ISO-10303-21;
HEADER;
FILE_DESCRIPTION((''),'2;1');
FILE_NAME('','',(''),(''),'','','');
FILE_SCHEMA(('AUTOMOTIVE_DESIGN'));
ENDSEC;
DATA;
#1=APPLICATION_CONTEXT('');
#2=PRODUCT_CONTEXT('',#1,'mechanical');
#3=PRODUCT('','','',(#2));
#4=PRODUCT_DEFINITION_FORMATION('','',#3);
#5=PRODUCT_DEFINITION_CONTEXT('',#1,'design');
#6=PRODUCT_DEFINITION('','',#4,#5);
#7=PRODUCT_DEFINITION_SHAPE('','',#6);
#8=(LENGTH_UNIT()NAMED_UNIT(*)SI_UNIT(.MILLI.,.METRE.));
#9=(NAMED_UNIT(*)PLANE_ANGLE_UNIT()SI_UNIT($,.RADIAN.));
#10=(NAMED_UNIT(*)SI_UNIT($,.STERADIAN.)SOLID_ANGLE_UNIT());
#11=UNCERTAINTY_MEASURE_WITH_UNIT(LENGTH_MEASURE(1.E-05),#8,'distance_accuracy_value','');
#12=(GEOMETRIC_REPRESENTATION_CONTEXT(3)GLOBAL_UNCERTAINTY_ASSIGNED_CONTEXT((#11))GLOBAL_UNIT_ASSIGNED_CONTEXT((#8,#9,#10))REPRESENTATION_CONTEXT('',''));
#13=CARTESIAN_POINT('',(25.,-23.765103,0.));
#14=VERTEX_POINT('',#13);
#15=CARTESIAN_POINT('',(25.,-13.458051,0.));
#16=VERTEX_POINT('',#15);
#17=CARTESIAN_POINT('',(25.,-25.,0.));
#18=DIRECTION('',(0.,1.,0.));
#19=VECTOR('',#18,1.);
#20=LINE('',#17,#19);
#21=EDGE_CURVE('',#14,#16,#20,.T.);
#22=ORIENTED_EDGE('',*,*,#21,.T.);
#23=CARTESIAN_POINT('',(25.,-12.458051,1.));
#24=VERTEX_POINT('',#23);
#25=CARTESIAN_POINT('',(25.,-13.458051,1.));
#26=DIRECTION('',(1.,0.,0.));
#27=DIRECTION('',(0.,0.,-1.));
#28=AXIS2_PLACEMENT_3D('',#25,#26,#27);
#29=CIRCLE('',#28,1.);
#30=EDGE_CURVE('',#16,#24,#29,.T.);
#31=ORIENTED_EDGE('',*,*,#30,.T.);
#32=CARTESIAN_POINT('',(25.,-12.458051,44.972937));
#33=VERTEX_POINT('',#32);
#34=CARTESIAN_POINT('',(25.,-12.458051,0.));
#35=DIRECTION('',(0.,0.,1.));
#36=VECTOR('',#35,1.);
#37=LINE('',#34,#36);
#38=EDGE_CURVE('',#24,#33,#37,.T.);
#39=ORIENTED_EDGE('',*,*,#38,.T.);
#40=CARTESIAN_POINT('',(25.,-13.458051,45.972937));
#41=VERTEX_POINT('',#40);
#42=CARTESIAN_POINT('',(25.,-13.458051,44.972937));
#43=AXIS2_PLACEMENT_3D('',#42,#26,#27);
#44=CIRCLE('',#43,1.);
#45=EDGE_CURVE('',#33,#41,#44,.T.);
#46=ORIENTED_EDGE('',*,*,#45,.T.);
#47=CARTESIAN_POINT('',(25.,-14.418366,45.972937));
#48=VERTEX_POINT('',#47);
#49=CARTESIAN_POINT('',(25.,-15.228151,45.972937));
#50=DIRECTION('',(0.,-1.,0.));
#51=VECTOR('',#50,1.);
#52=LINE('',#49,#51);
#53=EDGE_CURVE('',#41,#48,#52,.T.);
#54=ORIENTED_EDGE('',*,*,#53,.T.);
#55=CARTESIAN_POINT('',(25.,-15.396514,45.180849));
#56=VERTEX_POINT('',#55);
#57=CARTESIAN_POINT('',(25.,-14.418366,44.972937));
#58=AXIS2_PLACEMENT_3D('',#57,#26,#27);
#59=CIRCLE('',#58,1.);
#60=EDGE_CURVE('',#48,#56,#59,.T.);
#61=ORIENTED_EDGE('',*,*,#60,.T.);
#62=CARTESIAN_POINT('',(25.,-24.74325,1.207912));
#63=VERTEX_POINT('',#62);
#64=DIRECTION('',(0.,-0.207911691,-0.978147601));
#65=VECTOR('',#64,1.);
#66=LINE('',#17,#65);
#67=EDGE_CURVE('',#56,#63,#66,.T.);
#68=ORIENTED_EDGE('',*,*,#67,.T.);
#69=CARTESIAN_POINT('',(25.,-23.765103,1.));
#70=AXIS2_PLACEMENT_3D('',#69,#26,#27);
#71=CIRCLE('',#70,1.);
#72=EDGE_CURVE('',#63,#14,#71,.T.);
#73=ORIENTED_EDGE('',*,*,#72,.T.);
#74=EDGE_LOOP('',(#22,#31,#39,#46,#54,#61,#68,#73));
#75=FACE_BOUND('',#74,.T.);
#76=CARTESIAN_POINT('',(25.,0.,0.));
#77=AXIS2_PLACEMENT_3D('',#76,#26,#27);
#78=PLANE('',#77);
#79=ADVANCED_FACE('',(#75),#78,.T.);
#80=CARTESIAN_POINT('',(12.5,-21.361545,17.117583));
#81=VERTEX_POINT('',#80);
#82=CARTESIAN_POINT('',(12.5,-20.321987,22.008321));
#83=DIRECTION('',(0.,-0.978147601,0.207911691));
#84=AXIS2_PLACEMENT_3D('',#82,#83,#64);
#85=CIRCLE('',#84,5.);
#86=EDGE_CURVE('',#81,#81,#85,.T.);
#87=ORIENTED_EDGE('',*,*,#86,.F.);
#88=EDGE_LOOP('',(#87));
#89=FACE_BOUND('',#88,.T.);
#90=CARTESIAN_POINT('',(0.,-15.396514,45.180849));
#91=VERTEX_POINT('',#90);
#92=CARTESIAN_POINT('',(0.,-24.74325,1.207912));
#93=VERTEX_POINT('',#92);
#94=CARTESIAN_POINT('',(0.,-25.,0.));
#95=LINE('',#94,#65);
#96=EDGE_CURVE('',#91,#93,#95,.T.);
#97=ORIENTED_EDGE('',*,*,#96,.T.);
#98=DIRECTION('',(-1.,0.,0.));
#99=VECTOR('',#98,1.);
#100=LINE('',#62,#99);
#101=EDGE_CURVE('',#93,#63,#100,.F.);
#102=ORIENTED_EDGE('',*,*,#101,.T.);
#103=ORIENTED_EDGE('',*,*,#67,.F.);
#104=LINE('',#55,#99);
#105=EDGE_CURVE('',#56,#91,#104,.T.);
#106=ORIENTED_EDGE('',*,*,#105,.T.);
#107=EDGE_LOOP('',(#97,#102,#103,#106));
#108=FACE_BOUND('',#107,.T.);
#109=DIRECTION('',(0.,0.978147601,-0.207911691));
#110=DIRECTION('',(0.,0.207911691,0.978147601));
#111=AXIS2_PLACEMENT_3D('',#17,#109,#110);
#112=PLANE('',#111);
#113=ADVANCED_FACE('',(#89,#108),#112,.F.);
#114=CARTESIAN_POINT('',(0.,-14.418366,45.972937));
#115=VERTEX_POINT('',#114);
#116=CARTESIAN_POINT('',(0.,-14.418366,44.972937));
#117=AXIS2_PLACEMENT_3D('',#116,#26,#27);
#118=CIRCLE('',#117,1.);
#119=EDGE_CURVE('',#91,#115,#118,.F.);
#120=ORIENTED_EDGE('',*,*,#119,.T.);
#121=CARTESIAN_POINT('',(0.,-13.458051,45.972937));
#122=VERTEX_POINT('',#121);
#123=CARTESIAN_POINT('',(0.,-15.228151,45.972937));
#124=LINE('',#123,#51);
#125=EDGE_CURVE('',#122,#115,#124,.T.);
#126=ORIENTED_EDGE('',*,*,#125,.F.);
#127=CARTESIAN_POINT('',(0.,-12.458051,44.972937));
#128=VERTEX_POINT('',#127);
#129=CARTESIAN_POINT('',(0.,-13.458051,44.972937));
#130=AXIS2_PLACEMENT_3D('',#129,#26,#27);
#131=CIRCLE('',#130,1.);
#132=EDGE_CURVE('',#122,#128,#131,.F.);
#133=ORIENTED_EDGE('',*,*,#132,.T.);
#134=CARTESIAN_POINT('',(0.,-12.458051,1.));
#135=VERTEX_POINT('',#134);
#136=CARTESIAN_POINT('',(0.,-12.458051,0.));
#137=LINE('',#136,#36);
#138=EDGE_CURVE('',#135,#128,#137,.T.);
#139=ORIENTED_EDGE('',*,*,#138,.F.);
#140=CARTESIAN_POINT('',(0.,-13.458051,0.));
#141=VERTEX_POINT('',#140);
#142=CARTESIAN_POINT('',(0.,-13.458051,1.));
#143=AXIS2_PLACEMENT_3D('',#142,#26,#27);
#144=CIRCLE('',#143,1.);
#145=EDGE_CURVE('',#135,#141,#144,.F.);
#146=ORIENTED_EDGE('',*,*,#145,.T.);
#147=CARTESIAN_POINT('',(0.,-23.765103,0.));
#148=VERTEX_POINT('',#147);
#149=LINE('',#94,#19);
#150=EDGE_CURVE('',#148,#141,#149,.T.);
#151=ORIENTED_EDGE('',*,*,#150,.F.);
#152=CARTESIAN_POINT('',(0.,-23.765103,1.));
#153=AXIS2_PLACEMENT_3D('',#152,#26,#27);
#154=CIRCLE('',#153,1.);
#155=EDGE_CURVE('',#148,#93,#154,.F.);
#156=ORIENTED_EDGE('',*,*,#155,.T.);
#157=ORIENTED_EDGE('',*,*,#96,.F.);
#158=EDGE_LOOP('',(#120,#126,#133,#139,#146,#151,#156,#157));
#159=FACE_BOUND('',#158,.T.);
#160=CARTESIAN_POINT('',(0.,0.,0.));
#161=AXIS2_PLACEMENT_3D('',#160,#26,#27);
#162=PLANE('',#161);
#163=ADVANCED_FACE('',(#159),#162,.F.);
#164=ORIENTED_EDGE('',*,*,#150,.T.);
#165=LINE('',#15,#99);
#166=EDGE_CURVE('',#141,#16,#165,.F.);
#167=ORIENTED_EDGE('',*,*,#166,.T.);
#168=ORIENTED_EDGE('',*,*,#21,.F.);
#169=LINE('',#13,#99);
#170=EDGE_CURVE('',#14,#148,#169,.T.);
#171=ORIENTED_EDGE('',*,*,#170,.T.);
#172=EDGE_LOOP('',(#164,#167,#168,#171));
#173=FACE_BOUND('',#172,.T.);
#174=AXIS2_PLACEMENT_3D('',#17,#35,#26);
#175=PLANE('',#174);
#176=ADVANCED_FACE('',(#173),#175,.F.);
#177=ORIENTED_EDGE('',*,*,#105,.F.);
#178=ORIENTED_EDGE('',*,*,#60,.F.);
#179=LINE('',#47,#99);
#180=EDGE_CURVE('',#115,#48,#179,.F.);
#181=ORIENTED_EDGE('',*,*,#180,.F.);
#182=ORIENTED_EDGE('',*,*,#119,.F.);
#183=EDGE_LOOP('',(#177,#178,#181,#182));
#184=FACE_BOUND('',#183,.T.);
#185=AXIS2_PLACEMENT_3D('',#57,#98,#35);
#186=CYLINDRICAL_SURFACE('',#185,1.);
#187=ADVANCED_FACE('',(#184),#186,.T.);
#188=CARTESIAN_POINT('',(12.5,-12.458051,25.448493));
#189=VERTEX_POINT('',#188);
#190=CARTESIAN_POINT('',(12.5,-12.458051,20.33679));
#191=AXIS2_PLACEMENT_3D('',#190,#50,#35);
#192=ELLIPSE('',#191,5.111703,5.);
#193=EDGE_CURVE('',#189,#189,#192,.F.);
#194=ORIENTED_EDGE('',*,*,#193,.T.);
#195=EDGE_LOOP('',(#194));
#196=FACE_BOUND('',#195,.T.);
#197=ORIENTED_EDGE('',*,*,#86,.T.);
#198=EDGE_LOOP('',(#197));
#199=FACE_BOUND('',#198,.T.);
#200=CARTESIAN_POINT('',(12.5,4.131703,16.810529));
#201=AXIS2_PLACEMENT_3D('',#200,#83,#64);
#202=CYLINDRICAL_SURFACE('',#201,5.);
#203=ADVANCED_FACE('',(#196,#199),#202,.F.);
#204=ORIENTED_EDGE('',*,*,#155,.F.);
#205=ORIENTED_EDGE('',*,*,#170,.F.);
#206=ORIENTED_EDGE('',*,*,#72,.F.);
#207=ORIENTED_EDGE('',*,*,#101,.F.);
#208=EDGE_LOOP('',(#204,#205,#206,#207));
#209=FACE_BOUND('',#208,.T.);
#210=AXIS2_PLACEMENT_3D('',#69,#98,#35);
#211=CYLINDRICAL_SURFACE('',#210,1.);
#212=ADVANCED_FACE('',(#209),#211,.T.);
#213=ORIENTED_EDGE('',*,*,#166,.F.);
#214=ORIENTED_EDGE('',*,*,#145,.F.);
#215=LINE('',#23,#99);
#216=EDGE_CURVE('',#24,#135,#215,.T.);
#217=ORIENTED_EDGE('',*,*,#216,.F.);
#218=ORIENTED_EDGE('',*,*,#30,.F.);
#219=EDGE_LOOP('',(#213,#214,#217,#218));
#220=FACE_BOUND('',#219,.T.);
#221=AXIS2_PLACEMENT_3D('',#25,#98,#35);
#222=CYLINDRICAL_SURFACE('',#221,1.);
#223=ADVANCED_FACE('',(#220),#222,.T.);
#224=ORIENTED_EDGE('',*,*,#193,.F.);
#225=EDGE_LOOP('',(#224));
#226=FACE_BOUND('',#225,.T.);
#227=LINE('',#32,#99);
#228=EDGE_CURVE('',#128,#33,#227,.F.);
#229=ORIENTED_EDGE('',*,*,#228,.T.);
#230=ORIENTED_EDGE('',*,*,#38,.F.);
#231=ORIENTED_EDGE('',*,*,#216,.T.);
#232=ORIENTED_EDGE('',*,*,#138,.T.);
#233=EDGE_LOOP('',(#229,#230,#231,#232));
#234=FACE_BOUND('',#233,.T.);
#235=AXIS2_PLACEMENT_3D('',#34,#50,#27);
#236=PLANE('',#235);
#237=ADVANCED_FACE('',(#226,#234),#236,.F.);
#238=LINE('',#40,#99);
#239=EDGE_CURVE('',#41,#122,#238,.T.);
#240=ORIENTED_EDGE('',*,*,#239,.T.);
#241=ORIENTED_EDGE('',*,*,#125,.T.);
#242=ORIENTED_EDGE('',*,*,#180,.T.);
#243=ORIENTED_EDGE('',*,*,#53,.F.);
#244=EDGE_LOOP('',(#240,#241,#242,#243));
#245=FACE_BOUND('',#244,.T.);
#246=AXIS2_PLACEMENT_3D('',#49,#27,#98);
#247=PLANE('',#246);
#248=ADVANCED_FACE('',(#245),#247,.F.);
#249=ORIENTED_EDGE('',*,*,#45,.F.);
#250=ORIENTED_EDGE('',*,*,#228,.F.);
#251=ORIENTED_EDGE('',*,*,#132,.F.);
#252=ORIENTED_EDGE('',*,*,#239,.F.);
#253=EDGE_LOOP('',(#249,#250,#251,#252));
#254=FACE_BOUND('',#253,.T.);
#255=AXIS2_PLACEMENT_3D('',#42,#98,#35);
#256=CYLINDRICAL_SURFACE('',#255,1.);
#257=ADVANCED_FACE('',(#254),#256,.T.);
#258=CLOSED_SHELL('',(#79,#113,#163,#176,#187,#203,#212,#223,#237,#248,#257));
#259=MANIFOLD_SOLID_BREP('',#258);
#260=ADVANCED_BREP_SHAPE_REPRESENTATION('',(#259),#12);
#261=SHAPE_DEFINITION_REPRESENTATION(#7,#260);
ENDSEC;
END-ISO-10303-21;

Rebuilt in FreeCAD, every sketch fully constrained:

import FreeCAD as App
import Part
import Sketcher

V = App.Vector
Q = App.Units.Quantity


def edges_at(feature, points):
    """Names of the edges that pass closest to the given points."""
    edges = feature.Shape.Edges
    near = lambda p: min(range(len(edges)), key=lambda i: edges[i].distToShape(Part.Vertex(*p))[0])
    return sorted({f"Edge{near(p) + 1}" for p in points})


def add_polygon(sketch, points):
    """Adds a closed chain of lines whose ends are joined by coincident constraints."""
    first, n = sketch.GeometryCount, len(points)
    for a, b in zip(points, points[1:] + points[:1]):
        sketch.addGeometry(Part.LineSegment(App.Vector(*a, 0), App.Vector(*b, 0)), False)
    for i in range(n):
        sketch.addConstraint(Sketcher.Constraint("Coincident", first + i, 2, first + (i + 1) % n, 1))

doc = App.newDocument("Part")
params = doc.addObject("Spreadsheet::Sheet", "Params")
for row, (alias, value) in enumerate([
    ("sketch1_width", "25 mm"),
    ("sketch1_length", "47 mm"),
    ("pad1_length", "25 mm"),
    ("sketch2_diameter", "10 mm"),
    ("pocket1_length", "25 mm"),
    ("fillet_radius", "1 mm"),
], start=1):
    params.set(f"A{row}", alias)
    params.set(f"B{row}", "=" + value)
    params.setAlias(f"B{row}", alias)

body = doc.addObject("PartDesign::Body", "Body")

# Sketch on YZ plane
sketch1 = doc.addObject("Sketcher::SketchObject", "Sketch")
body.addObject(sketch1)
sketch1.AttachmentSupport = (doc.YZ_Plane, [""])
sketch1.MapMode = "FlatFace"
add_polygon(sketch1, [(0, 0), (0, 46), (-15, 46), (-25, 0)])  # lines 0-3
sketch1.addConstraint([
    Sketcher.Constraint("Vertical", 0),
    Sketcher.Constraint("Horizontal", 1),
    Sketcher.Constraint("Horizontal", 3),
    Sketcher.Constraint("Coincident", 3, 2, -1, 1),
    Sketcher.Constraint("DistanceX", 3, 1, 3, 2, 25.0),
    Sketcher.Constraint("Angle", 2, Q("-102 deg")),
    Sketcher.Constraint("Distance", 2, 47.0),
])
sketch1.setExpression("Constraints[8]", "Params.sketch1_width")
sketch1.setExpression("Constraints[10]", "Params.sketch1_length")
pad1 = doc.addObject("PartDesign::Pad", "Pad")
body.addObject(pad1)
pad1.Profile = sketch1
pad1.setExpression("Length", "Params.pad1_length")

# Sketch on an angled plane
sketch2 = doc.addObject("Sketcher::SketchObject", "Sketch001")
body.addObject(sketch2)
sketch2.Placement = App.Placement(V(0, -23.919318, 5.084208), App.Rotation(V(1, 0, 0), V(0, 0.207911691, 0.978147601), V(0, -0.978147601, 0.207911691), "ZXY"))
sketch2.addGeometry(Part.Circle(V(12, 17, 0), V(0, 0, 1), 5), False)
sketch2.addConstraint([
    Sketcher.Constraint("Diameter", 0, 10.0),
    Sketcher.Constraint("DistanceX", -1, 1, 0, 3, 12.5),
    Sketcher.Constraint("DistanceY", -1, 1, 0, 3, 17.302208),
])
sketch2.setExpression("Constraints[0]", "Params.sketch2_diameter")
pocket1 = doc.addObject("PartDesign::Pocket", "Pocket")
body.addObject(pocket1)
pocket1.Profile = sketch2
pocket1.setExpression("Length", "Params.pocket1_length")

# Sketch on YZ plane
sketch3 = doc.addObject("Sketcher::SketchObject", "Sketch002")
body.addObject(sketch3)
sketch3.AttachmentSupport = (doc.YZ_Plane, [""])
sketch3.MapMode = "FlatFace"
add_polygon(sketch3, [(0, 0), (-12, 0), (-12, 46), (0, 46)])  # lines 0-3
sketch3.addConstraint([
    Sketcher.Constraint("Horizontal", 0),
    Sketcher.Constraint("Vertical", 1),
    Sketcher.Constraint("Horizontal", 2),
    Sketcher.Constraint("Vertical", 3),
    Sketcher.Constraint("Coincident", 3, 2, -1, 1),
    Sketcher.Constraint("DistanceX", 0, 2, 0, 1, 12.458051),
    Sketcher.Constraint("DistanceY", 1, 1, 1, 2, 45.972937),
])
pocket2 = doc.addObject("PartDesign::Pocket", "Pocket001")
body.addObject(pocket2)
pocket2.Profile = sketch3
pocket2.Type = "ThroughAll"
pocket2.Reversed = True
doc.recompute()

fillet = doc.addObject("PartDesign::Fillet", "Fillet")
body.addObject(fillet)
fillet.Base = (pocket2, edges_at(pocket2, [
    (12.5, -12.458, 45.973),
    (12.5, -12.458, 0),
    (12.5, -25, 0),
    (12.5, -15.228, 45.973),
]))
fillet.setExpression("Radius", "Params.fillet_radius")

doc.recompute()
